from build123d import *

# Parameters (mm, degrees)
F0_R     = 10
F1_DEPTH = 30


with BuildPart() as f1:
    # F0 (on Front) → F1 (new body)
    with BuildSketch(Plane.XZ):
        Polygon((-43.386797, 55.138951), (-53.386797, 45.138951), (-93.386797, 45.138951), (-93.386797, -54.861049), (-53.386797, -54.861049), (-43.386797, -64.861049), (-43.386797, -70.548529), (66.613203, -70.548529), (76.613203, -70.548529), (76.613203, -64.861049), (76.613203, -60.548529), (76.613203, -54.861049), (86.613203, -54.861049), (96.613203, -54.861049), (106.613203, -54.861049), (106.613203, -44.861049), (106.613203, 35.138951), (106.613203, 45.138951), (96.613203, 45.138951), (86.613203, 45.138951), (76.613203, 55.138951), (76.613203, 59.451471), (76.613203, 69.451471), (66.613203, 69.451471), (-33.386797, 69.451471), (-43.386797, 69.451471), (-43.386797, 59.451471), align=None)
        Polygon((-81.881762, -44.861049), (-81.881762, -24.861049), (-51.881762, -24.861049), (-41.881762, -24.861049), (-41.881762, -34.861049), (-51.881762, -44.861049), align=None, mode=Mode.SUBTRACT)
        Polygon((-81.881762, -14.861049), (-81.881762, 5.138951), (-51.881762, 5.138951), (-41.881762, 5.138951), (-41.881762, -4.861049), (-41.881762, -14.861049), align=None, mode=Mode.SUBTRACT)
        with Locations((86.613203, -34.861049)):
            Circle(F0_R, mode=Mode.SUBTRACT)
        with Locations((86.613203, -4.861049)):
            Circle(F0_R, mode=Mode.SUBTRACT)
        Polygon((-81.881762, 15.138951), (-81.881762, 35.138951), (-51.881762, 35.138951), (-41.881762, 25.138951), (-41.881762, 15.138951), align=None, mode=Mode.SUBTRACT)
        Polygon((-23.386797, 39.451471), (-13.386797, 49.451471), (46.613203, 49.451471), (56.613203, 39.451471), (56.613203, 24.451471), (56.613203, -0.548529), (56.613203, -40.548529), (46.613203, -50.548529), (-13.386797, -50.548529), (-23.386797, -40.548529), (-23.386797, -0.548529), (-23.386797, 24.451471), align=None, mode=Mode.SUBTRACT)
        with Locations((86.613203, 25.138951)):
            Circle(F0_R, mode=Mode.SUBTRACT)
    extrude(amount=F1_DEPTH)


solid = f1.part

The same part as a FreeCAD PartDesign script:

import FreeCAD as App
import Part
import Sketcher

V = App.Vector
Q = App.Units.Quantity

doc = App.newDocument("Part")
params = doc.addObject("Spreadsheet::Sheet", "Params")
for row, (alias, value) in enumerate([
    ("sketch1_diameter", "20 mm"),
    ("sketch1_width", "40 mm"),
    ("sketch1_width2", "120 mm"),
    ("sketch1_width3", "30 mm"),
    ("sketch1_width4", "60 mm"),
    ("pad1_length", "30 mm"),
], start=1):
    params.set(f"A{row}", alias)
    params.set(f"B{row}", "=" + value)
    params.setAlias(f"B{row}", alias)

body = doc.addObject("PartDesign::Body", "Body")

sketch1 = body.newObject("Sketcher::SketchObject", "Sketch")
sketch1.AttachmentSupport = (doc.getObject("XZ_Plane"), [""])
sketch1.MapMode = "FlatFace"
sketch1.addGeometry([
    Part.LineSegment(V(-43.386797, 55.138951, 0), V(-53.386797, 45.138951, 0)),
    Part.LineSegment(V(-53.386797, 45.138951, 0), V(-93.386797, 45.138951, 0)),
    Part.LineSegment(V(-93.386797, 45.138951, 0), V(-93.386797, -54.861049, 0)),
    Part.LineSegment(V(-93.386797, -54.861049, 0), V(-53.386797, -54.861049, 0)),
    Part.LineSegment(V(-53.386797, -54.861049, 0), V(-43.386797, -64.861049, 0)),
    Part.LineSegment(V(-43.386797, -64.861049, 0), V(-43.386797, -70.548529, 0)),
    Part.LineSegment(V(-43.386797, -70.548529, 0), V(76.613203, -70.548529, 0)),
    Part.LineSegment(V(76.613203, -70.548529, 0), V(76.613203, -54.861049, 0)),
    Part.LineSegment(V(76.613203, -54.861049, 0), V(106.613203, -54.861049, 0)),
    Part.LineSegment(V(106.613203, -54.861049, 0), V(106.613203, 45.138951, 0)),
    Part.LineSegment(V(106.613203, 45.138951, 0), V(86.613203, 45.138951, 0)),
    Part.LineSegment(V(86.613203, 45.138951, 0), V(76.613203, 55.138951, 0)),
    Part.LineSegment(V(76.613203, 55.138951, 0), V(76.613203, 69.451471, 0)),
    Part.LineSegment(V(76.613203, 69.451471, 0), V(-43.386797, 69.451471, 0)),
    Part.LineSegment(V(-43.386797, 69.451471, 0), V(-43.386797, 55.138951, 0)),
    Part.LineSegment(V(-51.881762, -44.861049, 0), V(-81.881762, -44.861049, 0)),
    Part.LineSegment(V(-81.881762, -44.861049, 0), V(-81.881762, -24.861049, 0)),
    Part.LineSegment(V(-81.881762, -24.861049, 0), V(-41.881762, -24.861049, 0)),
    Part.LineSegment(V(-41.881762, -24.861049, 0), V(-41.881762, -34.861049, 0)),
    Part.LineSegment(V(-41.881762, -34.861049, 0), V(-51.881762, -44.861049, 0)),
    Part.LineSegment(V(-41.881762, -14.861049, 0), V(-81.881762, -14.861049, 0)),
    Part.LineSegment(V(-81.881762, -14.861049, 0), V(-81.881762, 5.138951, 0)),
    Part.LineSegment(V(-81.881762, 5.138951, 0), V(-41.881762, 5.138951, 0)),
    Part.LineSegment(V(-41.881762, 5.138951, 0), V(-41.881762, -14.861049, 0)),
    Part.Circle(V(86.613203, -34.861049, 0), V(0, 0, 1), 10),
    Part.Circle(V(86.613203, -4.861049, 0), V(0, 0, 1), 10),
    Part.LineSegment(V(-41.881762, 15.138951, 0), V(-81.881762, 15.138951, 0)),
    Part.LineSegment(V(-81.881762, 15.138951, 0), V(-81.881762, 35.138951, 0)),
    Part.LineSegment(V(-81.881762, 35.138951, 0), V(-51.881762, 35.138951, 0)),
    Part.LineSegment(V(-51.881762, 35.138951, 0), V(-41.881762, 25.138951, 0)),
    Part.LineSegment(V(-41.881762, 25.138951, 0), V(-41.881762, 15.138951, 0)),
    Part.LineSegment(V(-23.386797, -40.548529, 0), V(-23.386797, 39.451471, 0)),
    Part.LineSegment(V(-23.386797, 39.451471, 0), V(-13.386797, 49.451471, 0)),
    Part.LineSegment(V(-13.386797, 49.451471, 0), V(46.613203, 49.451471, 0)),
    Part.LineSegment(V(46.613203, 49.451471, 0), V(56.613203, 39.451471, 0)),
    Part.LineSegment(V(56.613203, 39.451471, 0), V(56.613203, -40.548529, 0)),
    Part.LineSegment(V(56.613203, -40.548529, 0), V(46.613203, -50.548529, 0)),
    Part.LineSegment(V(46.613203, -50.548529, 0), V(-13.386797, -50.548529, 0)),
    Part.LineSegment(V(-13.386797, -50.548529, 0), V(-23.386797, -40.548529, 0)),
    Part.Circle(V(86.613203, 25.138951, 0), V(0, 0, 1), 10),
], False)
sketch1.addConstraint([
    Sketcher.Constraint("Coincident", 0, 2, 1, 1),
    Sketcher.Constraint("Coincident", 1, 2, 2, 1),
    Sketcher.Constraint("Coincident", 2, 2, 3, 1),
    Sketcher.Constraint("Coincident", 3, 2, 4, 1),
    Sketcher.Constraint("Coincident", 4, 2, 5, 1),
    Sketcher.Constraint("Coincident", 5, 2, 6, 1),
    Sketcher.Constraint("Coincident", 6, 2, 7, 1),
    Sketcher.Constraint("Coincident", 7, 2, 8, 1),
    Sketcher.Constraint("Coincident", 8, 2, 9, 1),
    Sketcher.Constraint("Coincident", 9, 2, 10, 1),
    Sketcher.Constraint("Coincident", 10, 2, 11, 1),
    Sketcher.Constraint("Coincident", 11, 2, 12, 1),
    Sketcher.Constraint("Coincident", 12, 2, 13, 1),
    Sketcher.Constraint("Coincident", 13, 2, 14, 1),
    Sketcher.Constraint("Coincident", 14, 2, 0, 1),
    Sketcher.Constraint("Coincident", 15, 2, 16, 1),
    Sketcher.Constraint("Coincident", 16, 2, 17, 1),
    Sketcher.Constraint("Coincident", 17, 2, 18, 1),
    Sketcher.Constraint("Coincident", 18, 2, 19, 1),
    Sketcher.Constraint("Coincident", 19, 2, 15, 1),
    Sketcher.Constraint("Coincident", 20, 2, 21, 1),
    Sketcher.Constraint("Coincident", 21, 2, 22, 1),
    Sketcher.Constraint("Coincident", 22, 2, 23, 1),
    Sketcher.Constraint("Coincident", 23, 2, 20, 1),
    Sketcher.Constraint("Coincident", 26, 2, 27, 1),
    Sketcher.Constraint("Coincident", 27, 2, 28, 1),
    Sketcher.Constraint("Coincident", 28, 2, 29, 1),
    Sketcher.Constraint("Coincident", 29, 2, 30, 1),
    Sketcher.Constraint("Coincident", 30, 2, 26, 1),
    Sketcher.Constraint("Coincident", 31, 2, 32, 1),
    Sketcher.Constraint("Coincident", 32, 2, 33, 1),
    Sketcher.Constraint("Coincident", 33, 2, 34, 1),
    Sketcher.Constraint("Coincident", 34, 2, 35, 1),
    Sketcher.Constraint("Coincident", 35, 2, 36, 1),
    Sketcher.Constraint("Coincident", 36, 2, 37, 1),
    Sketcher.Constraint("Coincident", 37, 2, 38, 1),
    Sketcher.Constraint("Coincident", 38, 2, 31, 1),
    Sketcher.Constraint("Horizontal", 1),
    Sketcher.Constraint("Vertical", 2),
    Sketcher.Constraint("Horizontal", 3),
    Sketcher.Constraint("Vertical", 5),
    Sketcher.Constraint("Horizontal", 6),
    Sketcher.Constraint("Vertical", 7),
    Sketcher.Constraint("Horizontal", 8),
    Sketcher.Constraint("Vertical", 9),
    Sketcher.Constraint("Horizontal", 10),
    Sketcher.Constraint("Vertical", 12),
    Sketcher.Constraint("Horizontal", 13),
    Sketcher.Constraint("Vertical", 14),
    Sketcher.Constraint("Horizontal", 15),
    Sketcher.Constraint("Vertical", 16),
    Sketcher.Constraint("Horizontal", 17),
    Sketcher.Constraint("Vertical", 18),
    Sketcher.Constraint("Horizontal", 20),
    Sketcher.Constraint("Vertical", 21),
    Sketcher.Constraint("Horizontal", 22),
    Sketcher.Constraint("Vertical", 23),
    Sketcher.Constraint("Horizontal", 26),
    Sketcher.Constraint("Vertical", 27),
    Sketcher.Constraint("Horizontal", 28),
    Sketcher.Constraint("Vertical", 30),
    Sketcher.Constraint("Vertical", 31),
    Sketcher.Constraint("Horizontal", 33),
    Sketcher.Constraint("Vertical", 35),
    Sketcher.Constraint("Horizontal", 37),
    Sketcher.Constraint("Equal", 24, 25),
    Sketcher.Constraint("Equal", 25, 39),
    Sketcher.Constraint("Perpendicular", 0, 4),
    Sketcher.Constraint("Parallel", 4, 11),
    Sketcher.Constraint("Perpendicular", 11, 19),
    Sketcher.Constraint("Perpendicular", 19, 29),
    Sketcher.Constraint("Perpendicular", 29, 32),
    Sketcher.Constraint("Perpendicular", 32, 34),
    Sketcher.Constraint("Perpendicular", 34, 36),
    Sketcher.Constraint("Perpendicular", 36, 38),
    Sketcher.Constraint("Horizontal", 3, 2, 7, 2),
    Sketcher.Constraint("Horizontal", 1, 2, 9, 2),
    Sketcher.Constraint("Horizontal", 11, 2, 14, 2),
    Sketcher.Constraint("Horizontal", 24, 3, 18, 2),
    Sketcher.Constraint("Horizontal", 39, 3, 29, 2),
    Sketcher.Constraint("Horizontal", 31, 2, 34, 2),
    Sketcher.Constraint("Horizontal", 35, 2, 38, 2),
    Sketcher.Constraint("Vertical", 24, 3, 25, 3),
    Sketcher.Constraint("Vertical", 25, 3, 39, 3),
    Sketcher.Constraint("Vertical", 0, 2, 3, 2),
    Sketcher.Constraint("Vertical", 39, 3, 10, 2),
    Sketcher.Constraint("Vertical", 7, 2, 11, 2),
    Sketcher.Constraint("Vertical", 5, 2, 13, 2),
    Sketcher.Constraint("Vertical", 16, 2, 20, 2),
    Sketcher.Constraint("Vertical", 18, 2, 22, 2),
    Sketcher.Constraint("Vertical", 21, 2, 26, 2),
    Sketcher.Constraint("Vertical", 19, 2, 28, 2),
    Sketcher.Constraint("Vertical", 23, 2, 29, 2),
    Sketcher.Constraint("Vertical", 33, 2, 36, 2),
    Sketcher.Constraint("Vertical", 32, 2, 37, 2),
    Sketcher.Constraint("Equal", 8, 15),
    Sketcher.Constraint("Equal", 3, 17),
    Sketcher.Constraint("Equal", 10, 16),
    Sketcher.Constraint("Equal", 16, 21),
    Sketcher.Constraint("Equal", 23, 27),
    Sketcher.Constraint("Equal", 11, 19),
    Sketcher.Constraint("Equal", 29, 32),
    Sketcher.Constraint("Diameter", 24, Q("20 mm")),
    Sketcher.Constraint("DistanceX", 1, 2, 1, 1, Q("40 mm")),
    Sketcher.Constraint("DistanceX", 6, 1, 6, 2, Q("120 mm")),
    Sketcher.Constraint("DistanceX", 8, 1, 8, 2, Q("30 mm")),
    Sketcher.Constraint("DistanceX", 33, 1, 33, 2, Q("60 mm")),
    Sketcher.Constraint("DistanceY", 2, 2, 2, 1, Q("100 mm")),
    Sketcher.Constraint("DistanceY", 31, 1, 31, 2, Q("80 mm")),
    Sketcher.Constraint("DistanceY", 24, 3, 25, 3, Q("30 mm")),
    Sketcher.Constraint("DistanceY", 25, 3, 39, 3, Q("30 mm")),
    Sketcher.Constraint("DistanceY", 39, 3, 0, 2, Q("20 mm")),
    Sketcher.Constraint("DistanceY", 16, 2, 20, 2, Q("10 mm")),
    Sketcher.Constraint("DistanceX", 14, 2, 31, 2, Q("20 mm")),
    Sketcher.Constraint("DistanceY", 32, 2, 13, 2, Q("20 mm")),
    Sketcher.Constraint("DistanceY", 6, 2, 35, 2, Q("30 mm")),
    Sketcher.Constraint("DistanceY", 5, 2, 5, 1, Q("5.68748 mm")),
    Sketcher.Constraint("DistanceY", 24, 3, -1, 1, Q("34.861049 mm")),
    Sketcher.Constraint("DistanceX", 15, 2, -1, 1, Q("81.881762 mm")),
    Sketcher.Constraint("DistanceX", -1, 1, 24, 3, Q("86.613203 mm")),
])
sketch1.setExpression("Constraints[102]", "Params.sketch1_diameter")
sketch1.setExpression("Constraints[103]", "Params.sketch1_width")
sketch1.setExpression("Constraints[104]", "Params.sketch1_width2")
sketch1.setExpression("Constraints[105]", "Params.sketch1_width3")
sketch1.setExpression("Constraints[106]", "Params.sketch1_width4")
pad1 = body.newObject("PartDesign::Pad", "Pad")
pad1.Profile = sketch1
pad1.setExpression("Length", "Params.pad1_length")

doc.recompute()
